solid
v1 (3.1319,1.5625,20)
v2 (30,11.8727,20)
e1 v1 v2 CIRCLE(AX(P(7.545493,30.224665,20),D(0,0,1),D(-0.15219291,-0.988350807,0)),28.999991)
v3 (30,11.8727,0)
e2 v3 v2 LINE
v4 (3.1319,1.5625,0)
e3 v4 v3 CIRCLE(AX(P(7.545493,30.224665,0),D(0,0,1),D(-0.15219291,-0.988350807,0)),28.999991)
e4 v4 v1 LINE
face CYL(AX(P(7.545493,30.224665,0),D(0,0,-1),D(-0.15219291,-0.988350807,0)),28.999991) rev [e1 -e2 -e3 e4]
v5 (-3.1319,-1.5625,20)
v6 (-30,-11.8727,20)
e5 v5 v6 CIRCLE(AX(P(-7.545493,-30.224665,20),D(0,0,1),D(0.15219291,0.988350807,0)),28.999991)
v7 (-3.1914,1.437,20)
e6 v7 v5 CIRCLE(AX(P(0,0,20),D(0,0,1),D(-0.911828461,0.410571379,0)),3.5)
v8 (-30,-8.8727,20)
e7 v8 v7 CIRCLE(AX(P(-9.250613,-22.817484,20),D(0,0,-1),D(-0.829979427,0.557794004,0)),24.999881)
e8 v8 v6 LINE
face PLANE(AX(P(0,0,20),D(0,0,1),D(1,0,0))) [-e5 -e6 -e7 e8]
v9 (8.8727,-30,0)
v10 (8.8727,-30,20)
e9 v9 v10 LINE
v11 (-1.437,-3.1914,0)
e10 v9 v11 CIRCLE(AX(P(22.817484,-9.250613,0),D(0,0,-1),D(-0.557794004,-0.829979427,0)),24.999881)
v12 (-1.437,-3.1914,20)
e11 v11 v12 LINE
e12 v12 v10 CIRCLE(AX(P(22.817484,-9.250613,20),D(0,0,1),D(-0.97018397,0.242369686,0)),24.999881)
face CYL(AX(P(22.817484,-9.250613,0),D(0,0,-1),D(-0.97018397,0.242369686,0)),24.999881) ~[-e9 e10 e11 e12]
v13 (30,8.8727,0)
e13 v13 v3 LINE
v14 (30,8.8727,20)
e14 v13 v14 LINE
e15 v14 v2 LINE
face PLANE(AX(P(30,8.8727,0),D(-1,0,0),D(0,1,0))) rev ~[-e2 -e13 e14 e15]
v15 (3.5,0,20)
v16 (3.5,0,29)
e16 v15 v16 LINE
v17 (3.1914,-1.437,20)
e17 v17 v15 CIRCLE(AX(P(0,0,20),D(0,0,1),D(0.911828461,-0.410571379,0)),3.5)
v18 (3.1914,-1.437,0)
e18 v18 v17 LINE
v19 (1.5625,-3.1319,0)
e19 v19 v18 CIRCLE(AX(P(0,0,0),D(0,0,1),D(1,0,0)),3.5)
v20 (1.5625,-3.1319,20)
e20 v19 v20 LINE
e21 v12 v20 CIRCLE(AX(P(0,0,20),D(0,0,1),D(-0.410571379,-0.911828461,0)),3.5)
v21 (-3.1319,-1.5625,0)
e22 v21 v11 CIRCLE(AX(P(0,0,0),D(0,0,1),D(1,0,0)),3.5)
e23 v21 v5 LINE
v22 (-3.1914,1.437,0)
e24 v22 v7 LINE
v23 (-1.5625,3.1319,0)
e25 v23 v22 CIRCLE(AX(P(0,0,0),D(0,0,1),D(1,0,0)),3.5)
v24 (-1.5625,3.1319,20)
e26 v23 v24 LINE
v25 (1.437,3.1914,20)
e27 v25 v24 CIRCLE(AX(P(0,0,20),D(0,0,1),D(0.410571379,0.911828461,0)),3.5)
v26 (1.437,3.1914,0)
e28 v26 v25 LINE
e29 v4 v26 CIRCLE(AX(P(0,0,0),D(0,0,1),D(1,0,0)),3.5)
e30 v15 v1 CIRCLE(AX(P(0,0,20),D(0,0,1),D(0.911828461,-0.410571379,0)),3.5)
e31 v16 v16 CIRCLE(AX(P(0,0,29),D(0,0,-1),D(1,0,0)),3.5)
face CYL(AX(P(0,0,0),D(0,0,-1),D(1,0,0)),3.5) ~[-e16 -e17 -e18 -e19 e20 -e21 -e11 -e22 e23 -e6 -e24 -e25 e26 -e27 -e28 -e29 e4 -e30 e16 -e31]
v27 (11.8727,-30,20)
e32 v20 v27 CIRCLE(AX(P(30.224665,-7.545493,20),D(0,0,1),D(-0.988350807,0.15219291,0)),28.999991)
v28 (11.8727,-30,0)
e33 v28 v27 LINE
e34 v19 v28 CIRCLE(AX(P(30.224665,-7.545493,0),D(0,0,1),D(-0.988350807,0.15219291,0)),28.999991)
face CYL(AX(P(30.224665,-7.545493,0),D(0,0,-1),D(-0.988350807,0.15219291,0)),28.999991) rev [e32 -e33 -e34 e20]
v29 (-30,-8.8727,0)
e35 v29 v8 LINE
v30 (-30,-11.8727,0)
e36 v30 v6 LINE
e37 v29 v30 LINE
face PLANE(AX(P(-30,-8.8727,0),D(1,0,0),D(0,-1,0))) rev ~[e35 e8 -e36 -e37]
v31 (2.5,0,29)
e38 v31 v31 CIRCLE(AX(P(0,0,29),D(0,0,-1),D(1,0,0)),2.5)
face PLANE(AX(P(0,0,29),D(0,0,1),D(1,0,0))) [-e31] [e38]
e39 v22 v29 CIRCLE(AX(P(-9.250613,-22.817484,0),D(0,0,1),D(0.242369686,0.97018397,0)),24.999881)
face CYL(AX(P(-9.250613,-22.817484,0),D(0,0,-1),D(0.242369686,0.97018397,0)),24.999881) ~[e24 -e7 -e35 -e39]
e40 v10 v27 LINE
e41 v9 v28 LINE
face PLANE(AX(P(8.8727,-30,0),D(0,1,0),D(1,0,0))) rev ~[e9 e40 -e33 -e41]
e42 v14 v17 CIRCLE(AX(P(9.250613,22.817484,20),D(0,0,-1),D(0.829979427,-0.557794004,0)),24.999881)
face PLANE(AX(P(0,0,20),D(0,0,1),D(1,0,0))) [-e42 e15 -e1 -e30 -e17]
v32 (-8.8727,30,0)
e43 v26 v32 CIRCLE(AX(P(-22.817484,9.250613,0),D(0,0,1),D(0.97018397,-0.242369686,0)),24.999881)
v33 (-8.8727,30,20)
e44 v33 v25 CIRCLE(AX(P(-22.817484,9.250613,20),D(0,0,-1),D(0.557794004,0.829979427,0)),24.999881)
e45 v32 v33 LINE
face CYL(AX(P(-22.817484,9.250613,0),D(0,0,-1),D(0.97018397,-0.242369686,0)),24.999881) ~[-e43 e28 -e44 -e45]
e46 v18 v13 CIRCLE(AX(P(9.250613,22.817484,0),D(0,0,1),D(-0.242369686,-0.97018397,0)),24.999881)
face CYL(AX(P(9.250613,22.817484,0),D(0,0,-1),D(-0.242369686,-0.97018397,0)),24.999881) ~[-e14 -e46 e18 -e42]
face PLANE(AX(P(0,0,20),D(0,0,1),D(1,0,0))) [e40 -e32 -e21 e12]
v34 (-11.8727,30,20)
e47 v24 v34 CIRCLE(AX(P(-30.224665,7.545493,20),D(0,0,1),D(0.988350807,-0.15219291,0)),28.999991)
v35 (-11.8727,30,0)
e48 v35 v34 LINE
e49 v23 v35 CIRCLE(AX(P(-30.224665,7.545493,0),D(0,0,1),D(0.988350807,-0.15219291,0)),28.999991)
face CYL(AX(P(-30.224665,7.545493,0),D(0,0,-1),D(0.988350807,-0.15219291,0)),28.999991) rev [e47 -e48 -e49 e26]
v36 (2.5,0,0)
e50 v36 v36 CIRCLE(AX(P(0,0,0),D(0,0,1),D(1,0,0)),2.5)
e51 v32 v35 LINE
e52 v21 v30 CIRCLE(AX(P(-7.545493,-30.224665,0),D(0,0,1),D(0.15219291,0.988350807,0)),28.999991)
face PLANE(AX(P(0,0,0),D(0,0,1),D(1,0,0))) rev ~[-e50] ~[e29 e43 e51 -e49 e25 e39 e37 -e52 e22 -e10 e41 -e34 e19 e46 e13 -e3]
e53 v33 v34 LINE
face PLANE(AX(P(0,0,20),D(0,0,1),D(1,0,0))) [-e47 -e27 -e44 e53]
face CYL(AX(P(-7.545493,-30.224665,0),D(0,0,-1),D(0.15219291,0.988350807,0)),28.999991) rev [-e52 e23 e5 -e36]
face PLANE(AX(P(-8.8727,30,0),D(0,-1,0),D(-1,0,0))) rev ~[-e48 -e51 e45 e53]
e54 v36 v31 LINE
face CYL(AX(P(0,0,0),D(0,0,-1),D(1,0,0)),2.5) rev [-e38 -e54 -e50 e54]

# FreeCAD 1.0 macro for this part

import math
import FreeCAD as App
import Part
import Sketcher
Q = App.Units.Quantity

doc = App.newDocument("Part")
body = doc.addObject("PartDesign::Body", "Body")

sketch1 = doc.addObject("Sketcher::SketchObject", "Sketch")
body.addObject(sketch1)
sketch1.AttachmentSupport = (doc.XY_Plane, [""])
sketch1.MapMode = "FlatFace"
sketch1.addGeometry([
    Part.Circle(App.Vector(0, 0, 0), App.Vector(0, 0, 1), 3.5),
    Part.Circle(App.Vector(0, 0, 0), App.Vector(0, 0, 1), 2.5),
], False)
sketch1.addConstraint([
    Sketcher.Constraint("Coincident", 0, 3, -1, 1),
    Sketcher.Constraint("Coincident", 1, 3, -1, 1),
    Sketcher.Constraint("Diameter", 0, Q("7 mm")),
    Sketcher.Constraint("Diameter", 1, Q("5 mm")),
])
pad1 = doc.addObject("PartDesign::Pad", "Pad")
body.addObject(pad1)
pad1.Profile = sketch1
pad1.Length = 29

sketch2 = doc.addObject("Sketcher::SketchObject", "Sketch001")
body.addObject(sketch2)
sketch2.AttachmentSupport = (doc.XY_Plane, [""])
sketch2.MapMode = "FlatFace"
sketch2.addGeometry([
    Part.ArcOfCircle(Part.Circle(App.Vector(9.2506, 22.8177, 0), App.Vector(0, 0, 1), 25.000088), math.radians(-104.026294), math.radians(-33.90377)),
    Part.LineSegment(App.Vector(30, 8.8727, 0), App.Vector(30, 11.8727, 0)),
    Part.ArcOfCircle(Part.Circle(App.Vector(7.5455, 30.2246, 0), App.Vector(0, 0, 1), 28.999928), math.radians(-98.754063), math.radians(-39.25888)),
    Part.ArcOfCircle(Part.Circle(App.Vector(0, 0, 0), App.Vector(0, 0, 1), 3.5), math.radians(-24.240733), math.radians(26.514537)),
    Part.ArcOfCircle(Part.Circle(App.Vector(-22.8177, 9.2506, 0), App.Vector(0, 0, 1), 25.000088), math.radians(-14.026294), math.radians(56.09623)),
    Part.LineSegment(App.Vector(-8.8727, 30, 0), App.Vector(-11.8727, 30, 0)),
    Part.ArcOfCircle(Part.Circle(App.Vector(-30.2246, 7.5455, 0), App.Vector(0, 0, 1), 28.999928), math.radians(-8.754063), math.radians(50.74112)),
    Part.ArcOfCircle(Part.Circle(App.Vector(0, 0, 0), App.Vector(0, 0, 1), 3.5), math.radians(65.759267), math.radians(116.514537)),
    Part.ArcOfCircle(Part.Circle(App.Vector(30.2246, -7.5455, 0), App.Vector(0, 0, 1), 28.999928), math.radians(171.245937), math.radians(230.74112)),
    Part.ArcOfCircle(Part.Circle(App.Vector(0, 0, 0), App.Vector(0, 0, 1), 3.5), math.radians(-114.240733), math.radians(-63.485463)),
    Part.ArcOfCircle(Part.Circle(App.Vector(22.8177, -9.2506, 0), App.Vector(0, 0, 1), 25.000088), math.radians(165.973706), math.radians(236.09623)),
    Part.LineSegment(App.Vector(8.8727, -30, 0), App.Vector(11.8727, -30, 0)),
    Part.ArcOfCircle(Part.Circle(App.Vector(-9.2506, -22.8177, 0), App.Vector(0, 0, 1), 25.000088), math.radians(75.973706), math.radians(146.09623)),
    Part.LineSegment(App.Vector(-30, -8.8727, 0), App.Vector(-30, -11.8727, 0)),
    Part.ArcOfCircle(Part.Circle(App.Vector(-7.5455, -30.2246, 0), App.Vector(0, 0, 1), 28.999928), math.radians(81.245937), math.radians(140.74112)),
    Part.ArcOfCircle(Part.Circle(App.Vector(0, 0, 0), App.Vector(0, 0, 1), 3.5), math.radians(155.759267), math.radians(206.514537)),
], False)
sketch2.addConstraint([
    Sketcher.Constraint("Coincident", 0, 2, 1, 1),
    Sketcher.Constraint("Coincident", 1, 2, 2, 2),
    Sketcher.Constraint("Coincident", 2, 1, 3, 2),
    Sketcher.Constraint("Coincident", 3, 1, 0, 1),
    Sketcher.Constraint("Coincident", 4, 2, 5, 1),
    Sketcher.Constraint("Coincident", 5, 2, 6, 2),
    Sketcher.Constraint("Coincident", 6, 1, 7, 2),
    Sketcher.Constraint("Coincident", 7, 1, 4, 1),
    Sketcher.Constraint("Coincident", 8, 1, 9, 2),
    Sketcher.Constraint("Coincident", 9, 1, 10, 1),
    Sketcher.Constraint("Coincident", 10, 2, 11, 1),
    Sketcher.Constraint("Coincident", 11, 2, 8, 2),
    Sketcher.Constraint("Coincident", 12, 2, 13, 1),
    Sketcher.Constraint("Coincident", 13, 2, 14, 2),
    Sketcher.Constraint("Coincident", 14, 1, 15, 2),
    Sketcher.Constraint("Coincident", 15, 1, 12, 1),
    Sketcher.Constraint("Vertical", 1),
    Sketcher.Constraint("Horizontal", 5),
    Sketcher.Constraint("Horizontal", 11),
    Sketcher.Constraint("Vertical", 13),
    Sketcher.Constraint("Coincident", 3, 3, -1, 1),
    Sketcher.Constraint("Coincident", 7, 3, -1, 1),
    Sketcher.Constraint("Coincident", 9, 3, -1, 1),
    Sketcher.Constraint("Coincident", 15, 3, -1, 1),
    Sketcher.Constraint("Equal", 0, 4),
    Sketcher.Constraint("Equal", 2, 6),
    Sketcher.Constraint("Equal", 3, 7),
    Sketcher.Constraint("Equal", 6, 8),
    Sketcher.Constraint("Equal", 7, 9),
    Sketcher.Constraint("Equal", 4, 10),
    Sketcher.Constraint("Equal", 10, 12),
    Sketcher.Constraint("Equal", 8, 14),
    Sketcher.Constraint("Equal", 9, 15),
    Sketcher.Constraint("Symmetric", 6, 3, 8, 3, -1, 1),
    Sketcher.Constraint("Symmetric", 4, 3, 10, 3, -1, 1),
    Sketcher.Constraint("Symmetric", 0, 3, 12, 3, -1, 1),
    Sketcher.Constraint("Symmetric", 2, 3, 14, 3, -1, 1),
    Sketcher.Constraint("Equal", 5, 11),
    Sketcher.Constraint("Equal", 11, 1),
    Sketcher.Constraint("Equal", 1, 13),
    Sketcher.Constraint("Radius", 0, Q("25 mm")),
    Sketcher.Constraint("Radius", 2, Q("29 mm")),
    Sketcher.Constraint("DistanceX", 5, 2, 5, 1, Q("3 mm")),
    Sketcher.Constraint("DistanceX", -1, 1, 0, 2, Q("30 mm")),
    Sketcher.Constraint("DistanceY", -1, 1, 4, 2, Q("30 mm")),
    Sketcher.Constraint("Radius", 3, Q("3.5 mm")),
    Sketcher.Constraint("DistanceY", 3, 1, 2, 1, Q("2.9995 mm")),
    Sketcher.Constraint("DistanceX", 6, 1, 7, 1, Q("2.9995 mm")),
    Sketcher.Constraint("DistanceX", 6, 3, 2, 3, Q("37.77 mm")),
    Sketcher.Constraint("DistanceY", 8, 3, 2, 3, Q("37.77 mm")),
    Sketcher.Constraint("DistanceX", -1, 1, 2, 1, Q("3.132 mm")),
    Sketcher.Constraint("DistanceY", -1, 1, 6, 1, Q("3.132 mm")),
])
pad2 = doc.addObject("PartDesign::Pad", "Pad001")
body.addObject(pad2)
pad2.Profile = sketch2
pad2.Length = 20

doc.recompute()
